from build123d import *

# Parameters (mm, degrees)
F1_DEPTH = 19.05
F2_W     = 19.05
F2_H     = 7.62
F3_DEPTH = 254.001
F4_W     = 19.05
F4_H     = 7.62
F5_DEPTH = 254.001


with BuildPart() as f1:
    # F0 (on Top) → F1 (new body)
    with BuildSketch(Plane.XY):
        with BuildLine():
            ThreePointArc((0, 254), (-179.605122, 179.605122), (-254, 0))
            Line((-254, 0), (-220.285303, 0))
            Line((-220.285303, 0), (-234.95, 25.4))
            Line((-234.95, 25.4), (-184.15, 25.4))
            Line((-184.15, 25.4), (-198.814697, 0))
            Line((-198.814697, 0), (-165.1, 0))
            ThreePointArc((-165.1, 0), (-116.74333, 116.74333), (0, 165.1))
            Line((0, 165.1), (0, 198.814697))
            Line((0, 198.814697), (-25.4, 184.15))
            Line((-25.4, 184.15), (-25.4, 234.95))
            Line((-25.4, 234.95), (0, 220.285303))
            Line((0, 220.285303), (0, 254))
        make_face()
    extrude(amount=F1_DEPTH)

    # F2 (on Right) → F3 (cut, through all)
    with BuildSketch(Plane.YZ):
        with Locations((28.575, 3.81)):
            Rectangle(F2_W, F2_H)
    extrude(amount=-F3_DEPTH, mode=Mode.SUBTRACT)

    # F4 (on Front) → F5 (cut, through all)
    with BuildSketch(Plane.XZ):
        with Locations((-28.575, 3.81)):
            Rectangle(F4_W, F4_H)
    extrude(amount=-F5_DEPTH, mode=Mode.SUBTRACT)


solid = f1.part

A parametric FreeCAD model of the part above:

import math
import FreeCAD as App
import Part
import Sketcher
from FreeCAD import Vector
Q = App.Units.Quantity

doc = App.newDocument("Part")
body = doc.addObject("PartDesign::Body", "Body")

sketch1 = body.newObject("Sketcher::SketchObject", "Sketch")
sketch1.AttachmentSupport = (doc.getObject("XY_Plane"), [""])
sketch1.MapMode = "FlatFace"
sketch1.addGeometry(Part.ArcOfCircle(Part.Circle(Vector(0, 0, 0), Vector(0, 0, 1), 254), math.radians(90), math.radians(180)), False)
sketch1.addGeometry(Part.LineSegment(Vector(-254, 0, 0), Vector(-220, 0, 0)), False)
sketch1.addGeometry(Part.LineSegment(Vector(-220, 0, 0), Vector(-235, 25, 0)), False)
sketch1.addGeometry(Part.LineSegment(Vector(-235, 25, 0), Vector(-184, 25, 0)), False)
sketch1.addGeometry(Part.LineSegment(Vector(-184, 25, 0), Vector(-199, 0, 0)), False)
sketch1.addGeometry(Part.LineSegment(Vector(-199, 0, 0), Vector(-165, 0, 0)), False)
sketch1.addGeometry(Part.ArcOfCircle(Part.Circle(Vector(0, 0, 0), Vector(0, 0, 1), 165), math.radians(90), math.radians(180)), False)
sketch1.addGeometry(Part.LineSegment(Vector(0, 165, 0), Vector(0, 199, 0)), False)
sketch1.addGeometry(Part.LineSegment(Vector(0, 199, 0), Vector(-25, 184, 0)), False)
sketch1.addGeometry(Part.LineSegment(Vector(-25, 184, 0), Vector(-25, 235, 0)), False)
sketch1.addGeometry(Part.LineSegment(Vector(-25, 235, 0), Vector(0, 220, 0)), False)
sketch1.addGeometry(Part.LineSegment(Vector(0, 220, 0), Vector(0, 254, 0)), False)
sketch1.addConstraint(Sketcher.Constraint("Coincident", 0, 2, 1, 1))
sketch1.addConstraint(Sketcher.Constraint("Coincident", 1, 2, 2, 1))
sketch1.addConstraint(Sketcher.Constraint("Coincident", 2, 2, 3, 1))
sketch1.addConstraint(Sketcher.Constraint("Coincident", 3, 2, 4, 1))
sketch1.addConstraint(Sketcher.Constraint("Coincident", 4, 2, 5, 1))
sketch1.addConstraint(Sketcher.Constraint("Coincident", 5, 2, 6, 2))
sketch1.addConstraint(Sketcher.Constraint("Coincident", 6, 1, 7, 1))
sketch1.addConstraint(Sketcher.Constraint("Coincident", 7, 2, 8, 1))
sketch1.addConstraint(Sketcher.Constraint("Coincident", 8, 2, 9, 1))
sketch1.addConstraint(Sketcher.Constraint("Coincident", 9, 2, 10, 1))
sketch1.addConstraint(Sketcher.Constraint("Coincident", 10, 2, 11, 1))
sketch1.addConstraint(Sketcher.Constraint("Coincident", 11, 2, 0, 1))
sketch1.addConstraint(Sketcher.Constraint("Horizontal", 1))
sketch1.addConstraint(Sketcher.Constraint("Horizontal", 3))
sketch1.addConstraint(Sketcher.Constraint("Horizontal", 5))
sketch1.addConstraint(Sketcher.Constraint("Vertical", 7))
sketch1.addConstraint(Sketcher.Constraint("Vertical", 9))
sketch1.addConstraint(Sketcher.Constraint("Vertical", 11))
sketch1.addConstraint(Sketcher.Constraint("Coincident", 0, 3, -1, 1))
sketch1.addConstraint(Sketcher.Constraint("Coincident", 6, 3, -1, 1))
sketch1.addConstraint(Sketcher.Constraint("PointOnObject", 0, 2, -1))
sketch1.addConstraint(Sketcher.Constraint("PointOnObject", 4, 2, -1))
sketch1.addConstraint(Sketcher.Constraint("PointOnObject", 6, 1, -2))
sketch1.addConstraint(Sketcher.Constraint("PointOnObject", 10, 2, -2))
sketch1.addConstraint(Sketcher.Constraint("Perpendicular", 2, 8))
sketch1.addConstraint(Sketcher.Constraint("Perpendicular", 4, 10))
sketch1.addConstraint(Sketcher.Constraint("Equal", 1, 5))
sketch1.addConstraint(Sketcher.Constraint("Equal", 5, 7))
sketch1.addConstraint(Sketcher.Constraint("Equal", 3, 9))
sketch1.addConstraint(Sketcher.Constraint("Equal", 7, 11))
sketch1.addConstraint(Sketcher.Constraint("Equal", 2, 4))
sketch1.addConstraint(Sketcher.Constraint("Radius", 0, Q("10.0000001 in")))
sketch1.addConstraint(Sketcher.Constraint("Radius", 6, Q("6.4999999 in")))
sketch1.addConstraint(Sketcher.Constraint("DistanceX", 3, 1, 3, 2, Q("2 in")))
sketch1.addConstraint(Sketcher.Constraint("DistanceY", -1, 1, 2, 2, Q("1 in")))
sketch1.addConstraint(Sketcher.Constraint("Angle", 2, Q("120 deg")))
pad1 = body.newObject("PartDesign::Pad", "Pad")
pad1.Profile = sketch1
pad1.Length = Q("0.75 in")

sketch2 = body.newObject("Sketcher::SketchObject", "Sketch001")
sketch2.AttachmentSupport = (doc.getObject("YZ_Plane"), [""])
sketch2.MapMode = "FlatFace"
sketch2.addGeometry(Part.LineSegment(Vector(19, 8, 0), Vector(19, 0, 0)), False)
sketch2.addGeometry(Part.LineSegment(Vector(19, 0, 0), Vector(38, 0, 0)), False)
sketch2.addGeometry(Part.LineSegment(Vector(38, 0, 0), Vector(38, 8, 0)), False)
sketch2.addGeometry(Part.LineSegment(Vector(38, 8, 0), Vector(19, 8, 0)), False)
sketch2.addConstraint(Sketcher.Constraint("Coincident", 0, 2, 1, 1))
sketch2.addConstraint(Sketcher.Constraint("Coincident", 1, 2, 2, 1))
sketch2.addConstraint(Sketcher.Constraint("Coincident", 2, 2, 3, 1))
sketch2.addConstraint(Sketcher.Constraint("Coincident", 3, 2, 0, 1))
sketch2.addConstraint(Sketcher.Constraint("Vertical", 0))
sketch2.addConstraint(Sketcher.Constraint("Horizontal", 1))
sketch2.addConstraint(Sketcher.Constraint("Vertical", 2))
sketch2.addConstraint(Sketcher.Constraint("Horizontal", 3))
sketch2.addConstraint(Sketcher.Constraint("PointOnObject", 0, 2, -1))
sketch2.addConstraint(Sketcher.Constraint("DistanceY", 0, 2, 0, 1, Q("0.3 in")))
sketch2.addConstraint(Sketcher.Constraint("DistanceX", 1, 1, 1, 2, Q("0.75 in")))
sketch2.addConstraint(Sketcher.Constraint("DistanceX", -1, 1, 1, 2, Q("1.5 in")))
pocket1 = body.newObject("PartDesign::Pocket", "Pocket")
pocket1.Profile = sketch2
pocket1.Type = "ThroughAll"

sketch3 = body.newObject("Sketcher::SketchObject", "Sketch002")
sketch3.AttachmentSupport = (doc.getObject("XZ_Plane"), [""])
sketch3.MapMode = "FlatFace"
sketch3.addGeometry(Part.LineSegment(Vector(-38, 8, 0), Vector(-38, 0, 0)), False)
sketch3.addGeometry(Part.LineSegment(Vector(-38, 0, 0), Vector(-19, 0, 0)), False)
sketch3.addGeometry(Part.LineSegment(Vector(-19, 0, 0), Vector(-19, 8, 0)), False)
sketch3.addGeometry(Part.LineSegment(Vector(-19, 8, 0), Vector(-38, 8, 0)), False)
sketch3.addConstraint(Sketcher.Constraint("Coincident", 0, 2, 1, 1))
sketch3.addConstraint(Sketcher.Constraint("Coincident", 1, 2, 2, 1))
sketch3.addConstraint(Sketcher.Constraint("Coincident", 2, 2, 3, 1))
sketch3.addConstraint(Sketcher.Constraint("Coincident", 3, 2, 0, 1))
sketch3.addConstraint(Sketcher.Constraint("Vertical", 0))
sketch3.addConstraint(Sketcher.Constraint("Horizontal", 1))
sketch3.addConstraint(Sketcher.Constraint("Vertical", 2))
sketch3.addConstraint(Sketcher.Constraint("Horizontal", 3))
sketch3.addConstraint(Sketcher.Constraint("PointOnObject", 0, 2, -1))
sketch3.addConstraint(Sketcher.Constraint("DistanceY", 0, 2, 0, 1, Q("0.3 in")))
sketch3.addConstraint(Sketcher.Constraint("DistanceX", 1, 1, 1, 2, Q("0.75 in")))
sketch3.addConstraint(Sketcher.Constraint("DistanceX", 0, 2, -1, 1, Q("1.5 in")))
pocket2 = body.newObject("PartDesign::Pocket", "Pocket001")
pocket2.Profile = sketch3
pocket2.Type = "ThroughAll"

doc.recompute()
